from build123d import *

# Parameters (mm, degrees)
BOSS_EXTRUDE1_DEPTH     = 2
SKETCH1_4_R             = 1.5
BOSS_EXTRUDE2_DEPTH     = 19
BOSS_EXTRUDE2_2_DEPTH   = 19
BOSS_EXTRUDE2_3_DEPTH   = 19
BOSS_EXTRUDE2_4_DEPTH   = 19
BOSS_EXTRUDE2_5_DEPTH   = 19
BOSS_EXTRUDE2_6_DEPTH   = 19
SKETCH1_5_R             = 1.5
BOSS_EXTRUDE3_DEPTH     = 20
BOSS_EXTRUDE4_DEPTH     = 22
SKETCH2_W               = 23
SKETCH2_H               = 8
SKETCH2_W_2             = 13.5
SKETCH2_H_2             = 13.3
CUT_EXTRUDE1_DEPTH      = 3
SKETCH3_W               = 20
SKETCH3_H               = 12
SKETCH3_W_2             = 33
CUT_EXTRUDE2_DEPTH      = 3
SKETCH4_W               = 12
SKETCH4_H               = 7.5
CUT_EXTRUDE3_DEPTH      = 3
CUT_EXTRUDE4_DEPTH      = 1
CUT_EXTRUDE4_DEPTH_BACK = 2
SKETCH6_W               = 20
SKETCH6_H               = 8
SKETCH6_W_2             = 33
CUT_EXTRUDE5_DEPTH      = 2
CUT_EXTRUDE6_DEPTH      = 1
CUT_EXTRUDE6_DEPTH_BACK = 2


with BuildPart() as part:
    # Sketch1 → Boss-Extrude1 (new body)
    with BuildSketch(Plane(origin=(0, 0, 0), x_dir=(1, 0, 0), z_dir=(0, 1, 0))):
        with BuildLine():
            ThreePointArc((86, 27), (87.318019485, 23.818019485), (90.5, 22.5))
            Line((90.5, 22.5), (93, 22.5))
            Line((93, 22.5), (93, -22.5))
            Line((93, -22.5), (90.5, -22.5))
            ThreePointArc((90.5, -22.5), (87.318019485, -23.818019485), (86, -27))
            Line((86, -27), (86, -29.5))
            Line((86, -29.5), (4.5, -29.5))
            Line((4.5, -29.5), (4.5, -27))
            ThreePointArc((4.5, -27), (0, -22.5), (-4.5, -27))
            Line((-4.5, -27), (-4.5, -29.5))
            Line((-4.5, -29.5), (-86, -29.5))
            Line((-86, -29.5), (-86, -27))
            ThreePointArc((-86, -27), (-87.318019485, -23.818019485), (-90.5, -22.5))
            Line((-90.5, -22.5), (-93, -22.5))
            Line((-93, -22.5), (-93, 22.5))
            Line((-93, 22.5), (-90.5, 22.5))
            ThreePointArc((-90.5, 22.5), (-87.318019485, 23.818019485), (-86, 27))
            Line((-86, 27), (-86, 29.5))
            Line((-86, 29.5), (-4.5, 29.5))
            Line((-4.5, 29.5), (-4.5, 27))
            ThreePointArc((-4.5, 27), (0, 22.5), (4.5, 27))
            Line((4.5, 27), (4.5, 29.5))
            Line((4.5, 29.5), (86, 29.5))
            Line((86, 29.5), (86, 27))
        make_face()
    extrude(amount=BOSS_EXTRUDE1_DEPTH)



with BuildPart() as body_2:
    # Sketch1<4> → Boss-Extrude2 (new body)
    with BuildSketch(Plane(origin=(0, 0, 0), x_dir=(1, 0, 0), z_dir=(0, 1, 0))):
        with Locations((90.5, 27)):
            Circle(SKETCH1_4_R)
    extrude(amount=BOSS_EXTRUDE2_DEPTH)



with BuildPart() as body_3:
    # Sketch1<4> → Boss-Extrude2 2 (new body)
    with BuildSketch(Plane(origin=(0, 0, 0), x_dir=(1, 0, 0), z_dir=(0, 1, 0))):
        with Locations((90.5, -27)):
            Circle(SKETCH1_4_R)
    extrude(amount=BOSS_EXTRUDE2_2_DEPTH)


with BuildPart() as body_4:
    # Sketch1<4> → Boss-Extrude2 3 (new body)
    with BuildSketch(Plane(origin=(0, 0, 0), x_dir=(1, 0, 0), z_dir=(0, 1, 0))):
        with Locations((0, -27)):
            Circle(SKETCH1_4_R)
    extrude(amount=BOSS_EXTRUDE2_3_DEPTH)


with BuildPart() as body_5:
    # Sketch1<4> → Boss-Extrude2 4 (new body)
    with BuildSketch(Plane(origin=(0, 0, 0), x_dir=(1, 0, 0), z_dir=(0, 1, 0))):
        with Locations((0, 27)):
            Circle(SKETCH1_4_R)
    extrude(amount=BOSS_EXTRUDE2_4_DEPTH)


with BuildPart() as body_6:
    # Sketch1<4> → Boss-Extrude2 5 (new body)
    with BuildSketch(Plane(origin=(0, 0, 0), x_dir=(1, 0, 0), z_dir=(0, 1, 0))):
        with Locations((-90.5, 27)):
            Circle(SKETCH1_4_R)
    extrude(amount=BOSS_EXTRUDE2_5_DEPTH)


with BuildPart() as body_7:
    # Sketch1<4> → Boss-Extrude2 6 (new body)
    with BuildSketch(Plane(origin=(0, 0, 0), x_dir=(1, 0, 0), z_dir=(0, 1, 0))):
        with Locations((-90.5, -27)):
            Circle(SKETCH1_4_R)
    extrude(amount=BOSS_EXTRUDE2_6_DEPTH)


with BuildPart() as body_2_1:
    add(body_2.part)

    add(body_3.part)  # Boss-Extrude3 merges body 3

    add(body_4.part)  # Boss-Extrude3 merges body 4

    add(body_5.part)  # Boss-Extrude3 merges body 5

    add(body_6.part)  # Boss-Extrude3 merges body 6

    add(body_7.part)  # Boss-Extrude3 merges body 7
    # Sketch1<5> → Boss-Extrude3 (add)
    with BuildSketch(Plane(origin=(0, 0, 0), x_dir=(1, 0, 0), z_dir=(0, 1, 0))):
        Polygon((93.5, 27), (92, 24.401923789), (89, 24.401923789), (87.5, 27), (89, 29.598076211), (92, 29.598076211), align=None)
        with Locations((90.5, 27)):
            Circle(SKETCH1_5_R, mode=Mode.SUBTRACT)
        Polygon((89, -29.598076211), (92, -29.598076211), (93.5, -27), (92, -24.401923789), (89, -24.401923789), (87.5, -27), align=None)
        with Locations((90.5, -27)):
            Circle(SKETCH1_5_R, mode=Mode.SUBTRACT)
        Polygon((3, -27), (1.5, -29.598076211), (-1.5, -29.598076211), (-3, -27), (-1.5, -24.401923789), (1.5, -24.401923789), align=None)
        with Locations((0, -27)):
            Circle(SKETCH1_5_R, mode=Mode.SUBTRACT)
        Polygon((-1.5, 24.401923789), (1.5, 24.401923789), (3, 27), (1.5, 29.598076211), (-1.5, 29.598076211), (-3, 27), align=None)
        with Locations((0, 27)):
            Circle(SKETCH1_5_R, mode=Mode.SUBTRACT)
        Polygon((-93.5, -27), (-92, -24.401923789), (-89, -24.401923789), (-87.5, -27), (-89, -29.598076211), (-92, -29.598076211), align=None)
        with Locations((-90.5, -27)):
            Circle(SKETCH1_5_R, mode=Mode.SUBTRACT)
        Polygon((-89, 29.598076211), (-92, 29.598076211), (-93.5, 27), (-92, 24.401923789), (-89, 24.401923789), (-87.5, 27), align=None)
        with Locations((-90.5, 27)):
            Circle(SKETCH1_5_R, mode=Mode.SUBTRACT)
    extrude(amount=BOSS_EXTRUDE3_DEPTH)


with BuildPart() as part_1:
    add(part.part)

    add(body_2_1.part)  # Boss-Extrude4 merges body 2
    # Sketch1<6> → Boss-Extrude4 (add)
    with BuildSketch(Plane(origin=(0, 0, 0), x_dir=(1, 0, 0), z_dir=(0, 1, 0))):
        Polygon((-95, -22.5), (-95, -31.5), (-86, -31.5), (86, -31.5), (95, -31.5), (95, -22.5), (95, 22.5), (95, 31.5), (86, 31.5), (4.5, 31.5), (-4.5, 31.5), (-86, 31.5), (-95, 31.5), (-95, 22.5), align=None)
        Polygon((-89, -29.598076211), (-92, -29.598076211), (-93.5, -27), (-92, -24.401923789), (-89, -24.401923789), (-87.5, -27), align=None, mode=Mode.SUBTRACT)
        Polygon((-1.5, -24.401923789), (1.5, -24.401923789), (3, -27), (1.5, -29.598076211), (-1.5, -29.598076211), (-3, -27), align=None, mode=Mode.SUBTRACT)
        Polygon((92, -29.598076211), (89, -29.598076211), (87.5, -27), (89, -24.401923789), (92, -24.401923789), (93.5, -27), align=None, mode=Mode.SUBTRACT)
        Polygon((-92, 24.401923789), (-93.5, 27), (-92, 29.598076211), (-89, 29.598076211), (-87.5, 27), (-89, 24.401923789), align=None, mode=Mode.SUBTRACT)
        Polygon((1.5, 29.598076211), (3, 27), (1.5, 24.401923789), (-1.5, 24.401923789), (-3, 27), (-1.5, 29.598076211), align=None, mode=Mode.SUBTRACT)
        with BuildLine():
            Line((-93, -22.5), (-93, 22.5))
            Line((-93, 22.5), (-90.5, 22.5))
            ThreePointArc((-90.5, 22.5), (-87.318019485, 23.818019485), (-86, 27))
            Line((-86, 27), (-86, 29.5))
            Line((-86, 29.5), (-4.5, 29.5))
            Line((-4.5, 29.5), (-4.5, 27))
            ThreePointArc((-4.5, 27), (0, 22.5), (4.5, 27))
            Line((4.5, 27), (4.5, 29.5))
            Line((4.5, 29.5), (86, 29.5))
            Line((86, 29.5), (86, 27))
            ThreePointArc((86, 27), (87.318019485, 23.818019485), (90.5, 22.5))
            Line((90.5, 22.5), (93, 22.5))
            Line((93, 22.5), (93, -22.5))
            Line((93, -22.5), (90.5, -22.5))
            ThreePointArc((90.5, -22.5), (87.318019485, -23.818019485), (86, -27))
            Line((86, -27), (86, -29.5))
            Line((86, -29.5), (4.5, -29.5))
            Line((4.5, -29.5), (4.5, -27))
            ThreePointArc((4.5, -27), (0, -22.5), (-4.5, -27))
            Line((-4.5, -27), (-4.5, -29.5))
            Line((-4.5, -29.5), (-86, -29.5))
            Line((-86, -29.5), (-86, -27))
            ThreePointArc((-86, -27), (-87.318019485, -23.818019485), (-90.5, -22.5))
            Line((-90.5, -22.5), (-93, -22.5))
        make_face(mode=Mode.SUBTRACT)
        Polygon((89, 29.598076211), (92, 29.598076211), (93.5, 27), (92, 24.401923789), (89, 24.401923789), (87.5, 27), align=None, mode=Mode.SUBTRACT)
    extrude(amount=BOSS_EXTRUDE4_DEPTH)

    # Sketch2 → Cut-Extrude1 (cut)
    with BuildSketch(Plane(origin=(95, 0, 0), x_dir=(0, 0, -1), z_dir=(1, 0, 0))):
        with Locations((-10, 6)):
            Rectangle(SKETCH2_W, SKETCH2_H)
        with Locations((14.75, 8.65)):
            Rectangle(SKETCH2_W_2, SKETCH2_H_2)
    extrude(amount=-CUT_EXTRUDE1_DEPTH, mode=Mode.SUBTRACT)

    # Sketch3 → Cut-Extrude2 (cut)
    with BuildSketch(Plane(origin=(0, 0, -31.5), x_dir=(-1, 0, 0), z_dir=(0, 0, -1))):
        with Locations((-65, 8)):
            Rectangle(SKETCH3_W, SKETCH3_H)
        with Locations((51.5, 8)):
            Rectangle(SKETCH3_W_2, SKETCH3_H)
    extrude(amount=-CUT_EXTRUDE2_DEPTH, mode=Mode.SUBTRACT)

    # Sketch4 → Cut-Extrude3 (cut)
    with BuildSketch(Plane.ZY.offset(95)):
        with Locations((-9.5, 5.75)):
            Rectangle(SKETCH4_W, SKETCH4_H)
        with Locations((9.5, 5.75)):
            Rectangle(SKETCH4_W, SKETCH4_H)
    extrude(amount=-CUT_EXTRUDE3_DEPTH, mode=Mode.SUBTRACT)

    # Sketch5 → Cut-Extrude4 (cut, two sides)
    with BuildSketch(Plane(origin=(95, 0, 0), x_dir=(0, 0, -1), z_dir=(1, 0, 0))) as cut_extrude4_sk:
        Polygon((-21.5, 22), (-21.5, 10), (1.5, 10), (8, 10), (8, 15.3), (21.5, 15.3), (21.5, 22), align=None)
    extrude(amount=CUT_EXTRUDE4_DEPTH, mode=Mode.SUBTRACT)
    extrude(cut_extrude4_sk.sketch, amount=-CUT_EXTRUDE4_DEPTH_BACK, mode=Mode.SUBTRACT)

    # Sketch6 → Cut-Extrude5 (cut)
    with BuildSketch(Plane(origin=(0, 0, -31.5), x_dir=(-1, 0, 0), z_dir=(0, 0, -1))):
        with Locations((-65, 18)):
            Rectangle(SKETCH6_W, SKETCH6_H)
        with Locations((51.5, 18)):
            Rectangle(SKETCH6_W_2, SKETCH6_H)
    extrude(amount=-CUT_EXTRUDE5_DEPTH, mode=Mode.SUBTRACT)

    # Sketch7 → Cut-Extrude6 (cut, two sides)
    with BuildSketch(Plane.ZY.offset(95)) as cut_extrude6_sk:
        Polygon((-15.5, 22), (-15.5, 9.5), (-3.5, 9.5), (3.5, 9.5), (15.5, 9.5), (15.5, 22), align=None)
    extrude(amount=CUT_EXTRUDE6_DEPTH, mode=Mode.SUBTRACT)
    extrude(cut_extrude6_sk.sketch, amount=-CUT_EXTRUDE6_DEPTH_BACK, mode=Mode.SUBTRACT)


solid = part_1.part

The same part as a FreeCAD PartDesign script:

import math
import FreeCAD as App
import Part
import Sketcher
from FreeCAD import Vector
Q = App.Units.Quantity


def add_polygon(sketch, points):
    """Adds a closed chain of lines whose ends are joined by coincident constraints."""
    first, n = sketch.GeometryCount, len(points)
    for a, b in zip(points, points[1:] + points[:1]):
        sketch.addGeometry(Part.LineSegment(App.Vector(*a, 0), App.Vector(*b, 0)), False)
    for i in range(n):
        sketch.addConstraint(Sketcher.Constraint("Coincident", first + i, 2, first + (i + 1) % n, 1))

doc = App.newDocument("Part")
params = doc.addObject("Spreadsheet::Sheet", "Params")
for row, (alias, value) in enumerate([
    ("sketch1_radius", "4.5 mm"),
    ("sketch1_height", "45 mm"),
    ("sketch1_width", "81.5 mm"),
    ("sketch1_width2", "2.5 mm"),
    ("pad1_length", "2 mm"),
    ("sketch2_diameter", "3 mm"),
    ("pad2_length", "19 mm"),
    ("sketch3_diameter", "3 mm"),
    ("pad3_length", "19 mm"),
    ("sketch4_diameter", "3 mm"),
    ("pad4_length", "19 mm"),
    ("sketch5_diameter", "3 mm"),
    ("pad5_length", "19 mm"),
    ("sketch6_diameter", "3 mm"),
    ("pad6_length", "19 mm"),
    ("sketch7_diameter", "3 mm"),
    ("pad7_length", "19 mm"),
    ("sketch8_diameter", "3 mm"),
    ("sketch8_width", "3 mm"),
    ("sketch8_length", "3 mm"),
    ("pad8_length", "20 mm"),
    ("sketch9_radius", "4.5 mm"),
    ("sketch9_width", "190 mm"),
    ("sketch9_width2", "3 mm"),
    ("sketch9_height", "63 mm"),
    ("sketch9_height2", "45 mm"),
    ("pad9_length", "22 mm"),
    ("sketch10_width", "8 mm"),
    ("sketch10_height", "23 mm"),
    ("sketch10_width2", "13.3 mm"),
    ("sketch10_height2", "13.5 mm"),
    ("pocket1_length", "3 mm"),
    ("sketch11_width", "20 mm"),
    ("sketch11_width2", "33 mm"),
    ("sketch11_height", "12 mm"),
    ("pocket2_length", "3 mm"),
    ("sketch12_height", "12 mm"),
    ("sketch12_width", "7.5 mm"),
    ("pocket3_length", "3 mm"),
    ("sketch13_width", "12 mm"),
    ("sketch13_height", "43 mm"),
    ("sketch13_width2", "5.3 mm"),
    ("sketch13_height2", "29.5 mm"),
    ("pocket4_length", "1 mm"),
    ("pocket4_length2", "2 mm"),
    ("sketch14_width", "20 mm"),
    ("sketch14_width2", "33 mm"),
    ("sketch14_height", "8 mm"),
    ("pocket5_length", "2 mm"),
    ("sketch15_height", "31 mm"),
    ("sketch15_width", "12.5 mm"),
    ("pocket6_length", "1 mm"),
    ("pocket6_length2", "2 mm"),
], start=1):
    params.set(f"A{row}", alias)
    params.set(f"B{row}", "=" + value)
    params.setAlias(f"B{row}", alias)

body = doc.addObject("PartDesign::Body", "Body")

# Sketch on XZ plane
sketch1 = body.newObject("Sketcher::SketchObject", "Sketch")
sketch1.AttachmentSupport = (doc.getObject("XZ_Plane"), [""])
sketch1.MapMode = "FlatFace"
sketch1.addGeometry(Part.ArcOfCircle(Part.Circle(Vector(90.5, -27, 0), Vector(0, 0, 1), 4.5), math.radians(90), math.radians(180)), False)
sketch1.addGeometry(Part.LineSegment(Vector(86, -27, 0), Vector(86, -29.5, 0)), False)
sketch1.addGeometry(Part.LineSegment(Vector(86, -29.5, 0), Vector(4.5, -29.5, 0)), False)
sketch1.addGeometry(Part.LineSegment(Vector(4.5, -29.5, 0), Vector(4.5, -27, 0)), False)
sketch1.addGeometry(Part.ArcOfCircle(Part.Circle(Vector(0, -27, 0), Vector(0, 0, 1), 4.5), math.radians(0), math.radians(180)), False)
sketch1.addGeometry(Part.LineSegment(Vector(-4.5, -27, 0), Vector(-4.5, -29.5, 0)), False)
sketch1.addGeometry(Part.LineSegment(Vector(-4.5, -29.5, 0), Vector(-86, -29.5, 0)), False)
sketch1.addGeometry(Part.LineSegment(Vector(-86, -29.5, 0), Vector(-86, -27, 0)), False)
sketch1.addGeometry(Part.ArcOfCircle(Part.Circle(Vector(-90.5, -27, 0), Vector(0, 0, 1), 4.5), math.radians(0), math.radians(90)), False)
sketch1.addGeometry(Part.LineSegment(Vector(-90.5, -22.5, 0), Vector(-93, -22.5, 0)), False)
sketch1.addGeometry(Part.LineSegment(Vector(-93, -22.5, 0), Vector(-93, 22.5, 0)), False)
sketch1.addGeometry(Part.LineSegment(Vector(-93, 22.5, 0), Vector(-90.5, 22.5, 0)), False)
sketch1.addGeometry(Part.ArcOfCircle(Part.Circle(Vector(-90.5, 27, 0), Vector(0, 0, 1), 4.5), math.radians(-90), math.radians(0)), False)
sketch1.addGeometry(Part.LineSegment(Vector(-86, 27, 0), Vector(-86, 29.5, 0)), False)
sketch1.addGeometry(Part.LineSegment(Vector(-86, 29.5, 0), Vector(-4.5, 29.5, 0)), False)
sketch1.addGeometry(Part.LineSegment(Vector(-4.5, 29.5, 0), Vector(-4.5, 27, 0)), False)
sketch1.addGeometry(Part.ArcOfCircle(Part.Circle(Vector(0, 27, 0), Vector(0, 0, 1), 4.5), math.radians(180), math.radians(360)), False)
sketch1.addGeometry(Part.LineSegment(Vector(4.5, 27, 0), Vector(4.5, 29.5, 0)), False)
sketch1.addGeometry(Part.LineSegment(Vector(4.5, 29.5, 0), Vector(86, 29.5, 0)), False)
sketch1.addGeometry(Part.LineSegment(Vector(86, 29.5, 0), Vector(86, 27, 0)), False)
sketch1.addGeometry(Part.ArcOfCircle(Part.Circle(Vector(90.5, 27, 0), Vector(0, 0, 1), 4.5), math.radians(-180), math.radians(-90)), False)
sketch1.addGeometry(Part.LineSegment(Vector(90.5, 22.5, 0), Vector(93, 22.5, 0)), False)
sketch1.addGeometry(Part.LineSegment(Vector(93, 22.5, 0), Vector(93, -22.5, 0)), False)
sketch1.addGeometry(Part.LineSegment(Vector(93, -22.5, 0), Vector(90.5, -22.5, 0)), False)
sketch1.addConstraint(Sketcher.Constraint("Tangent", 0, 2, 1, 1))
sketch1.addConstraint(Sketcher.Constraint("Coincident", 1, 2, 2, 1))
sketch1.addConstraint(Sketcher.Constraint("Coincident", 2, 2, 3, 1))
sketch1.addConstraint(Sketcher.Constraint("Tangent", 3, 2, 4, 1))
sketch1.addConstraint(Sketcher.Constraint("Tangent", 4, 2, 5, 1))
sketch1.addConstraint(Sketcher.Constraint("Coincident", 5, 2, 6, 1))
sketch1.addConstraint(Sketcher.Constraint("Coincident", 6, 2, 7, 1))
sketch1.addConstraint(Sketcher.Constraint("Tangent", 7, 2, 8, 1))
sketch1.addConstraint(Sketcher.Constraint("Tangent", 8, 2, 9, 1))
sketch1.addConstraint(Sketcher.Constraint("Coincident", 9, 2, 10, 1))
sketch1.addConstraint(Sketcher.Constraint("Coincident", 10, 2, 11, 1))
sketch1.addConstraint(Sketcher.Constraint("Tangent", 11, 2, 12, 1))
sketch1.addConstraint(Sketcher.Constraint("Tangent", 12, 2, 13, 1))
sketch1.addConstraint(Sketcher.Constraint("Coincident", 13, 2, 14, 1))
sketch1.addConstraint(Sketcher.Constraint("Coincident", 14, 2, 15, 1))
sketch1.addConstraint(Sketcher.Constraint("Tangent", 15, 2, 16, 1))
sketch1.addConstraint(Sketcher.Constraint("Tangent", 16, 2, 17, 1))
sketch1.addConstraint(Sketcher.Constraint("Coincident", 17, 2, 18, 1))
sketch1.addConstraint(Sketcher.Constraint("Coincident", 18, 2, 19, 1))
sketch1.addConstraint(Sketcher.Constraint("Tangent", 19, 2, 20, 1))
sketch1.addConstraint(Sketcher.Constraint("Tangent", 20, 2, 21, 1))
sketch1.addConstraint(Sketcher.Constraint("Coincident", 21, 2, 22, 1))
sketch1.addConstraint(Sketcher.Constraint("Coincident", 22, 2, 23, 1))
sketch1.addConstraint(Sketcher.Constraint("Tangent", 23, 2, 0, 1))
sketch1.addConstraint(Sketcher.Constraint("Vertical", 1))
sketch1.addConstraint(Sketcher.Constraint("Horizontal", 2))
sketch1.addConstraint(Sketcher.Constraint("Vertical", 3))
sketch1.addConstraint(Sketcher.Constraint("Vertical", 5))
sketch1.addConstraint(Sketcher.Constraint("Horizontal", 6))
sketch1.addConstraint(Sketcher.Constraint("Vertical", 7))
sketch1.addConstraint(Sketcher.Constraint("Horizontal", 9))
sketch1.addConstraint(Sketcher.Constraint("Vertical", 10))
sketch1.addConstraint(Sketcher.Constraint("Horizontal", 11))
sketch1.addConstraint(Sketcher.Constraint("Vertical", 13))
sketch1.addConstraint(Sketcher.Constraint("Horizontal", 14))
sketch1.addConstraint(Sketcher.Constraint("Vertical", 15))
sketch1.addConstraint(Sketcher.Constraint("Vertical", 17))
sketch1.addConstraint(Sketcher.Constraint("Horizontal", 18))
sketch1.addConstraint(Sketcher.Constraint("Vertical", 19))
sketch1.addConstraint(Sketcher.Constraint("Horizontal", 21))
sketch1.addConstraint(Sketcher.Constraint("Vertical", 22))
sketch1.addConstraint(Sketcher.Constraint("Horizontal", 23))
sketch1.addConstraint(Sketcher.Constraint("Equal", 0, 4))
sketch1.addConstraint(Sketcher.Constraint("Equal", 4, 8))
sketch1.addConstraint(Sketcher.Constraint("Equal", 8, 12))
sketch1.addConstraint(Sketcher.Constraint("Equal", 12, 16))
sketch1.addConstraint(Sketcher.Constraint("Equal", 16, 20))
sketch1.addConstraint(Sketcher.Constraint("Symmetric", 0, 3, 12, 3, -1, 1))
sketch1.addConstraint(Sketcher.Constraint("Symmetric", 4, 3, 16, 3, -1, 1))
sketch1.addConstraint(Sketcher.Constraint("Symmetric", 8, 3, 20, 3, -1, 1))
sketch1.addConstraint(Sketcher.Constraint("Symmetric", 0, 3, 8, 3, -2))
sketch1.addConstraint(Sketcher.Constraint("Symmetric", 2, 2, 5, 2, -2))
sketch1.addConstraint(Sketcher.Constraint("Horizontal", 0, 3, 4, 3))
sketch1.addConstraint(Sketcher.Constraint("Horizontal", 14, 2, 17, 2))
sketch1.addConstraint(Sketcher.Constraint("Equal", 11, 21))
sketch1.addConstraint(Sketcher.Constraint("Equal", 23, 1))
sketch1.addConstraint(Sketcher.Constraint("Equal", 7, 13))
sketch1.addConstraint(Sketcher.Constraint("Radius", 0, Q("4.5 mm")))
sketch1.addConstraint(Sketcher.Constraint("DistanceY", 10, 1, 10, 2, Q("45 mm")))
sketch1.addConstraint(Sketcher.Constraint("DistanceX", 2, 2, 2, 1, Q("81.5 mm")))
sketch1.addConstraint(Sketcher.Constraint("DistanceX", 9, 2, 9, 1, Q("2.5 mm")))
sketch1.setExpression("Constraints[57]", "Params.sketch1_radius")
sketch1.setExpression("Constraints[58]", "Params.sketch1_height")
sketch1.setExpression("Constraints[59]", "Params.sketch1_width")
sketch1.setExpression("Constraints[60]", "Params.sketch1_width2")
pad1 = body.newObject("PartDesign::Pad", "Pad")
pad1.Profile = sketch1
pad1.setExpression("Length", "Params.pad1_length")
pad1.Reversed = True
body2 = doc.addObject("PartDesign::Body", "Body001")

# Sketch on XZ plane
sketch2 = body2.newObject("Sketcher::SketchObject", "Sketch001")
sketch2.AttachmentSupport = (doc.getObject("XZ_Plane001"), [""])
sketch2.MapMode = "FlatFace"
sketch2.addGeometry(Part.Circle(Vector(90.5, -27, 0), Vector(0, 0, 1), 1.5), False)
sketch2.addConstraint(Sketcher.Constraint("Diameter", 0, Q("3 mm")))
sketch2.addConstraint(Sketcher.Constraint("DistanceY", 0, 3, -1, 1, Q("27 mm")))
sketch2.addConstraint(Sketcher.Constraint("DistanceX", -1, 1, 0, 3, Q("90.5 mm")))
sketch2.setExpression("Constraints[0]", "Params.sketch2_diameter")
pad2 = body2.newObject("PartDesign::Pad", "Pad001")
pad2.Profile = sketch2
pad2.setExpression("Length", "Params.pad2_length")
pad2.Reversed = True
body3 = doc.addObject("PartDesign::Body", "Body002")

# Sketch on XZ plane
sketch3 = body3.newObject("Sketcher::SketchObject", "Sketch002")
sketch3.AttachmentSupport = (doc.getObject("XZ_Plane002"), [""])
sketch3.MapMode = "FlatFace"
sketch3.addGeometry(Part.Circle(Vector(90.5, 27, 0), Vector(0, 0, 1), 1.5), False)
sketch3.addConstraint(Sketcher.Constraint("Diameter", 0, Q("3 mm")))
sketch3.addConstraint(Sketcher.Constraint("DistanceY", -1, 1, 0, 3, Q("27 mm")))
sketch3.addConstraint(Sketcher.Constraint("DistanceX", -1, 1, 0, 3, Q("90.5 mm")))
sketch3.setExpression("Constraints[0]", "Params.sketch3_diameter")
pad3 = body3.newObject("PartDesign::Pad", "Pad002")
pad3.Profile = sketch3
pad3.setExpression("Length", "Params.pad3_length")
pad3.Reversed = True
body4 = doc.addObject("PartDesign::Body", "Body003")

# Sketch on XZ plane
sketch4 = body4.newObject("Sketcher::SketchObject", "Sketch003")
sketch4.AttachmentSupport = (doc.getObject("XZ_Plane003"), [""])
sketch4.MapMode = "FlatFace"
sketch4.addGeometry(Part.Circle(Vector(0, 27, 0), Vector(0, 0, 1), 1.5), False)
sketch4.addConstraint(Sketcher.Constraint("PointOnObject", 0, 3, -2))
sketch4.addConstraint(Sketcher.Constraint("Diameter", 0, Q("3 mm")))
sketch4.addConstraint(Sketcher.Constraint("DistanceY", -1, 1, 0, 3, Q("27 mm")))
sketch4.setExpression("Constraints[1]", "Params.sketch4_diameter")
pad4 = body4.newObject("PartDesign::Pad", "Pad003")
pad4.Profile = sketch4
pad4.setExpression("Length", "Params.pad4_length")
pad4.Reversed = True
body5 = doc.addObject("PartDesign::Body", "Body004")

# Sketch on XZ plane
sketch5 = body5.newObject("Sketcher::SketchObject", "Sketch004")
sketch5.AttachmentSupport = (doc.getObject("XZ_Plane004"), [""])
sketch5.MapMode = "FlatFace"
sketch5.addGeometry(Part.Circle(Vector(0, -27, 0), Vector(0, 0, 1), 1.5), False)
sketch5.addConstraint(Sketcher.Constraint("PointOnObject", 0, 3, -2))
sketch5.addConstraint(Sketcher.Constraint("Diameter", 0, Q("3 mm")))
sketch5.addConstraint(Sketcher.Constraint("DistanceY", 0, 3, -1, 1, Q("27 mm")))
sketch5.setExpression("Constraints[1]", "Params.sketch5_diameter")
pad5 = body5.newObject("PartDesign::Pad", "Pad004")
pad5.Profile = sketch5
pad5.setExpression("Length", "Params.pad5_length")
pad5.Reversed = True
body6 = doc.addObject("PartDesign::Body", "Body005")

# Sketch on XZ plane
sketch6 = body6.newObject("Sketcher::SketchObject", "Sketch005")
sketch6.AttachmentSupport = (doc.getObject("XZ_Plane005"), [""])
sketch6.MapMode = "FlatFace"
sketch6.addGeometry(Part.Circle(Vector(-90.5, -27, 0), Vector(0, 0, 1), 1.5), False)
sketch6.addConstraint(Sketcher.Constraint("Diameter", 0, Q("3 mm")))
sketch6.addConstraint(Sketcher.Constraint("DistanceY", 0, 3, -1, 1, Q("27 mm")))
sketch6.addConstraint(Sketcher.Constraint("DistanceX", 0, 3, -1, 1, Q("90.5 mm")))
sketch6.setExpression("Constraints[0]", "Params.sketch6_diameter")
pad6 = body6.newObject("PartDesign::Pad", "Pad005")
pad6.Profile = sketch6
pad6.setExpression("Length", "Params.pad6_length")
pad6.Reversed = True
body7 = doc.addObject("PartDesign::Body", "Body006")

# Sketch on XZ plane
sketch7 = body7.newObject("Sketcher::SketchObject", "Sketch006")
sketch7.AttachmentSupport = (doc.getObject("XZ_Plane006"), [""])
sketch7.MapMode = "FlatFace"
sketch7.addGeometry(Part.Circle(Vector(-90.5, 27, 0), Vector(0, 0, 1), 1.5), False)
sketch7.addConstraint(Sketcher.Constraint("Diameter", 0, Q("3 mm")))
sketch7.addConstraint(Sketcher.Constraint("DistanceY", -1, 1, 0, 3, Q("27 mm")))
sketch7.addConstraint(Sketcher.Constraint("DistanceX", 0, 3, -1, 1, Q("90.5 mm")))
sketch7.setExpression("Constraints[0]", "Params.sketch7_diameter")
pad7 = body7.newObject("PartDesign::Pad", "Pad006")
pad7.Profile = sketch7
pad7.setExpression("Length", "Params.pad7_length")
pad7.Reversed = True
body2.AllowCompound = True
doc.recompute()

boolean = body2.newObject("PartDesign::Boolean", "Boolean")
boolean.Type = "Fuse"
boolean.addObjects([body3])
doc.recompute()

boolean2 = body2.newObject("PartDesign::Boolean", "Boolean001")
boolean2.Type = "Fuse"
boolean2.addObjects([body4])
doc.recompute()

boolean3 = body2.newObject("PartDesign::Boolean", "Boolean002")
boolean3.Type = "Fuse"
boolean3.addObjects([body5])
doc.recompute()

boolean4 = body2.newObject("PartDesign::Boolean", "Boolean003")
boolean4.Type = "Fuse"
boolean4.addObjects([body6])
doc.recompute()

boolean5 = body2.newObject("PartDesign::Boolean", "Boolean004")
boolean5.Type = "Fuse"
boolean5.addObjects([body7])

# Sketch on XZ plane
sketch8 = body2.newObject("Sketcher::SketchObject", "Sketch007")
sketch8.AttachmentSupport = (doc.getObject("XZ_Plane001"), [""])
sketch8.MapMode = "FlatFace"
add_polygon(sketch8, [(92, -24.4), (93.5, -27), (92, -29.6), (89, -29.6), (87.5, -27), (89, -24.4)])  # lines 0-5
sketch8.addGeometry(Part.Circle(Vector(90.5, -27, 0), Vector(0, 0, 1), 1.5), False)  # 6
add_polygon(sketch8, [(89, 29.6), (92, 29.6), (93.5, 27), (92, 24.4), (89, 24.4), (87.5, 27)])  # lines 7-12
sketch8.addGeometry(Part.Circle(Vector(90.5, 27, 0), Vector(0, 0, 1), 1.5), False)  # 13
add_polygon(sketch8, [(1.5, 29.6), (3, 27), (1.5, 24.4), (-1.5, 24.4), (-3, 27), (-1.5, 29.6)])  # lines 14-19
sketch8.addGeometry(Part.Circle(Vector(0, 27, 0), Vector(0, 0, 1), 1.5), False)  # 20
add_polygon(sketch8, [(-1.5, -24.4), (1.5, -24.4), (3, -27), (1.5, -29.6), (-1.5, -29.6), (-3, -27)])  # lines 21-26
sketch8.addGeometry(Part.Circle(Vector(0, -27, 0), Vector(0, 0, 1), 1.5), False)  # 27
add_polygon(sketch8, [(-92, 24.4), (-93.5, 27), (-92, 29.6), (-89, 29.6), (-87.5, 27), (-89, 24.4)])  # lines 28-33
sketch8.addGeometry(Part.Circle(Vector(-90.5, 27, 0), Vector(0, 0, 1), 1.5), False)  # 34
add_polygon(sketch8, [(-89, -29.6), (-92, -29.6), (-93.5, -27), (-92, -24.4), (-89, -24.4), (-87.5, -27)])  # lines 35-40
sketch8.addGeometry(Part.Circle(Vector(-90.5, -27, 0), Vector(0, 0, 1), 1.5), False)  # 41
sketch8.addConstraint(Sketcher.Constraint("Horizontal", 2))
sketch8.addConstraint(Sketcher.Constraint("Horizontal", 5))
sketch8.addConstraint(Sketcher.Constraint("Horizontal", 7))
sketch8.addConstraint(Sketcher.Constraint("Horizontal", 10))
sketch8.addConstraint(Sketcher.Constraint("Horizontal", 16))
sketch8.addConstraint(Sketcher.Constraint("Horizontal", 19))
sketch8.addConstraint(Sketcher.Constraint("Horizontal", 21))
sketch8.addConstraint(Sketcher.Constraint("Horizontal", 24))
sketch8.addConstraint(Sketcher.Constraint("Horizontal", 30))
sketch8.addConstraint(Sketcher.Constraint("Horizontal", 33))
sketch8.addConstraint(Sketcher.Constraint("Horizontal", 35))
sketch8.addConstraint(Sketcher.Constraint("Horizontal", 38))
sketch8.addConstraint(Sketcher.Constraint("Equal", 6, 13))
sketch8.addConstraint(Sketcher.Constraint("Equal", 13, 20))
sketch8.addConstraint(Sketcher.Constraint("Equal", 20, 27))
sketch8.addConstraint(Sketcher.Constraint("Equal", 27, 34))
sketch8.addConstraint(Sketcher.Constraint("Equal", 34, 41))
sketch8.addConstraint(Sketcher.Constraint("Symmetric", 20, 3, 27, 3, -1, 1))
sketch8.addConstraint(Sketcher.Constraint("Symmetric", 6, 3, 34, 3, -1, 1))
sketch8.addConstraint(Sketcher.Constraint("Symmetric", 13, 3, 41, 3, -1, 1))
sketch8.addConstraint(Sketcher.Constraint("Symmetric", 16, 2, 21, 2, -1, 1))
sketch8.addConstraint(Sketcher.Constraint("Symmetric", 17, 2, 22, 2, -1, 1))
sketch8.addConstraint(Sketcher.Constraint("Symmetric", 18, 2, 23, 2, -1, 1))
sketch8.addConstraint(Sketcher.Constraint("Symmetric", 14, 2, 25, 2, -1, 1))
sketch8.addConstraint(Sketcher.Constraint("Symmetric", 0, 2, 28, 2, -1, 1))
sketch8.addConstraint(Sketcher.Constraint("Symmetric", 1, 2, 29, 2, -1, 1))
sketch8.addConstraint(Sketcher.Constraint("Symmetric", 3, 2, 31, 2, -1, 1))
sketch8.addConstraint(Sketcher.Constraint("Symmetric", 4, 2, 32, 2, -1, 1))
sketch8.addConstraint(Sketcher.Constraint("Symmetric", 7, 2, 35, 2, -1, 1))
sketch8.addConstraint(Sketcher.Constraint("Symmetric", 8, 2, 36, 2, -1, 1))
sketch8.addConstraint(Sketcher.Constraint("Symmetric", 9, 2, 37, 2, -1, 1))
sketch8.addConstraint(Sketcher.Constraint("Symmetric", 11, 2, 39, 2, -1, 1))
sketch8.addConstraint(Sketcher.Constraint("Symmetric", 13, 3, 34, 3, -2))
sketch8.addConstraint(Sketcher.Constraint("Symmetric", 14, 2, 17, 2, -2))
sketch8.addConstraint(Sketcher.Constraint("Symmetric", 8, 2, 28, 2, -2))
sketch8.addConstraint(Sketcher.Constraint("Symmetric", 7, 2, 29, 2, -2))
sketch8.addConstraint(Sketcher.Constraint("Symmetric", 11, 2, 31, 2, -2))
sketch8.addConstraint(Sketcher.Constraint("Symmetric", 10, 2, 32, 2, -2))
sketch8.addConstraint(Sketcher.Constraint("PointOnObject", 20, 3, -2))
sketch8.addConstraint(Sketcher.Constraint("Parallel", 0, 3))
sketch8.addConstraint(Sketcher.Constraint("Parallel", 1, 4))
sketch8.addConstraint(Sketcher.Constraint("Parallel", 3, 8))
sketch8.addConstraint(Sketcher.Constraint("Parallel", 4, 9))
sketch8.addConstraint(Sketcher.Constraint("Parallel", 9, 12))
sketch8.addConstraint(Sketcher.Constraint("Parallel", 11, 14))
sketch8.addConstraint(Sketcher.Constraint("Parallel", 12, 15))
sketch8.addConstraint(Sketcher.Constraint("Parallel", 14, 17))
sketch8.addConstraint(Sketcher.Constraint("Parallel", 15, 18))
sketch8.addConstraint(Sketcher.Constraint("Parallel", 22, 25))
sketch8.addConstraint(Sketcher.Constraint("Parallel", 23, 26))
sketch8.addConstraint(Sketcher.Constraint("Parallel", 25, 28))
sketch8.addConstraint(Sketcher.Constraint("Parallel", 28, 31))
sketch8.addConstraint(Sketcher.Constraint("Parallel", 36, 39))
sketch8.addConstraint(Sketcher.Constraint("Parallel", 37, 40))
sketch8.addConstraint(Sketcher.Constraint("Horizontal", 13, 3, 20, 3))
sketch8.addConstraint(Sketcher.Constraint("Horizontal", 41, 3, 0, 2))
sketch8.addConstraint(Sketcher.Constraint("Horizontal", 0, 2, 3, 2))
sketch8.addConstraint(Sketcher.Constraint("Horizontal", 11, 2, 14, 2))
sketch8.addConstraint(Sketcher.Constraint("Horizontal", 10, 2, 15, 2))
sketch8.addConstraint(Sketcher.Constraint("Horizontal", 12, 2, 18, 2))
sketch8.addConstraint(Sketcher.Constraint("Vertical", 2, 2, 4, 2))
sketch8.addConstraint(Sketcher.Constraint("Equal", 10, 16))
sketch8.addConstraint(Sketcher.Constraint("Diameter", 6, Q("3 mm")))
sketch8.addConstraint(Sketcher.Constraint("DistanceX", 2, 2, 2, 1, Q("3 mm")))
sketch8.addConstraint(Sketcher.Constraint("Angle", 0, Q("-60 deg")))
sketch8.addConstraint(Sketcher.Constraint("Distance", 0, Q("3 mm")))
sketch8.addConstraint(Sketcher.Constraint("DistanceY", 6, 3, -1, 1, Q("27 mm")))
sketch8.addConstraint(Sketcher.Constraint("DistanceX", -1, 1, 1, 2, Q("92 mm")))
sketch8.addConstraint(Sketcher.Constraint("DistanceX", 34, 3, 13, 3, Q("181 mm")))
sketch8.setExpression("Constraints[98]", "Params.sketch8_diameter")
sketch8.setExpression("Constraints[99]", "Params.sketch8_width")
sketch8.setExpression("Constraints[101]", "Params.sketch8_length")
pad8 = body2.newObject("PartDesign::Pad", "Pad007")
pad8.Profile = sketch8
pad8.setExpression("Length", "Params.pad8_length")
pad8.Reversed = True
body.AllowCompound = True
doc.recompute()

boolean6 = body.newObject("PartDesign::Boolean", "Boolean005")
boolean6.Type = "Fuse"
boolean6.addObjects([body2])

# Sketch on XZ plane
sketch9 = body.newObject("Sketcher::SketchObject", "Sketch008")
sketch9.AttachmentSupport = (doc.getObject("XZ_Plane"), [""])
sketch9.MapMode = "FlatFace"
add_polygon(sketch9, [(-95, 31.5), (95, 31.5), (95, -31.5), (-95, -31.5)])  # lines 0-3
add_polygon(sketch9, [(-87.5, 27), (-89, 29.6), (-92, 29.6), (-93.5, 27), (-92, 24.4), (-89, 24.4)])  # lines 4-9
add_polygon(sketch9, [(-3, 27), (-1.5, 24.4), (1.5, 24.4), (3, 27), (1.5, 29.6), (-1.5, 29.6)])  # lines 10-15
add_polygon(sketch9, [(93.5, 27), (92, 29.6), (89, 29.6), (87.5, 27), (89, 24.4), (92, 24.4)])  # lines 16-21
sketch9.addGeometry(Part.LineSegment(Vector(-90.5, 22.5, 0), Vector(-93, 22.5, 0)), False)  # 22
sketch9.addGeometry(Part.LineSegment(Vector(-93, 22.5, 0), Vector(-93, -22.5, 0)), False)  # 23
sketch9.addGeometry(Part.LineSegment(Vector(-93, -22.5, 0), Vector(-90.5, -22.5, 0)), False)  # 24
sketch9.addGeometry(Part.ArcOfCircle(Part.Circle(Vector(-90.5, -27, 0), Vector(0, 0, 1), 4.5), math.radians(0), math.radians(90)), False)  # 25
sketch9.addGeometry(Part.LineSegment(Vector(-86, -27, 0), Vector(-86, -29.5, 0)), False)  # 26
sketch9.addGeometry(Part.LineSegment(Vector(-86, -29.5, 0), Vector(-4.5, -29.5, 0)), False)  # 27
sketch9.addGeometry(Part.LineSegment(Vector(-4.5, -29.5, 0), Vector(-4.5, -27, 0)), False)  # 28
sketch9.addGeometry(Part.ArcOfCircle(Part.Circle(Vector(0, -27, 0), Vector(0, 0, 1), 4.5), math.radians(0), math.radians(180)), False)  # 29
sketch9.addGeometry(Part.LineSegment(Vector(4.5, -27, 0), Vector(4.5, -29.5, 0)), False)  # 30
sketch9.addGeometry(Part.LineSegment(Vector(4.5, -29.5, 0), Vector(86, -29.5, 0)), False)  # 31
sketch9.addGeometry(Part.LineSegment(Vector(86, -29.5, 0), Vector(86, -27, 0)), False)  # 32
sketch9.addGeometry(Part.ArcOfCircle(Part.Circle(Vector(90.5, -27, 0), Vector(0, 0, 1), 4.5), math.radians(90), math.radians(180)), False)  # 33
sketch9.addGeometry(Part.LineSegment(Vector(90.5, -22.5, 0), Vector(93, -22.5, 0)), False)  # 34
sketch9.addGeometry(Part.LineSegment(Vector(93, -22.5, 0), Vector(93, 22.5, 0)), False)  # 35
sketch9.addGeometry(Part.LineSegment(Vector(93, 22.5, 0), Vector(90.5, 22.5, 0)), False)  # 36
sketch9.addGeometry(Part.ArcOfCircle(Part.Circle(Vector(90.5, 27, 0), Vector(0, 0, 1), 4.5), math.radians(-180), math.radians(-90)), False)  # 37
sketch9.addGeometry(Part.LineSegment(Vector(86, 27, 0), Vector(86, 29.5, 0)), False)  # 38
sketch9.addGeometry(Part.LineSegment(Vector(86, 29.5, 0), Vector(4.5, 29.5, 0)), False)  # 39
sketch9.addGeometry(Part.LineSegment(Vector(4.5, 29.5, 0), Vector(4.5, 27, 0)), False)  # 40
sketch9.addGeometry(Part.ArcOfCircle(Part.Circle(Vector(0, 27, 0), Vector(0, 0, 1), 4.5), math.radians(180), math.radians(360)), False)  # 41
sketch9.addGeometry(Part.LineSegment(Vector(-4.5, 27, 0), Vector(-4.5, 29.5, 0)), False)  # 42
sketch9.addGeometry(Part.LineSegment(Vector(-4.5, 29.5, 0), Vector(-86, 29.5, 0)), False)  # 43
sketch9.addGeometry(Part.LineSegment(Vector(-86, 29.5, 0), Vector(-86, 27, 0)), False)  # 44
sketch9.addGeometry(Part.ArcOfCircle(Part.Circle(Vector(-90.5, 27, 0), Vector(0, 0, 1), 4.5), math.radians(-90), math.radians(0)), False)  # 45
add_polygon(sketch9, [(-89, -24.4), (-92, -24.4), (-93.5, -27), (-92, -29.6), (-89, -29.6), (-87.5, -27)])  # lines 46-51
add_polygon(sketch9, [(-1.5, -29.6), (1.5, -29.6), (3, -27), (1.5, -24.4), (-1.5, -24.4), (-3, -27)])  # lines 52-57
add_polygon(sketch9, [(87.5, -27), (89, -29.6), (92, -29.6), (93.5, -27), (92, -24.4), (89, -24.4)])  # lines 58-63
sketch9.addConstraint(Sketcher.Constraint("Coincident", 22, 2, 23, 1))
sketch9.addConstraint(Sketcher.Constraint("Coincident", 23, 2, 24, 1))
sketch9.addConstraint(Sketcher.Constraint("Tangent", 24, 2, 25, 2))
sketch9.addConstraint(Sketcher.Constraint("Tangent", 25, 1, 26, 1))
sketch9.addConstraint(Sketcher.Constraint("Coincident", 26, 2, 27, 1))
sketch9.addConstraint(Sketcher.Constraint("Coincident", 27, 2, 28, 1))
sketch9.addConstraint(Sketcher.Constraint("Tangent", 28, 2, 29, 2))
sketch9.addConstraint(Sketcher.Constraint("Tangent", 29, 1, 30, 1))
sketch9.addConstraint(Sketcher.Constraint("Coincident", 30, 2, 31, 1))
sketch9.addConstraint(Sketcher.Constraint("Coincident", 31, 2, 32, 1))
sketch9.addConstraint(Sketcher.Constraint("Tangent", 32, 2, 33, 2))
sketch9.addConstraint(Sketcher.Constraint("Tangent", 33, 1, 34, 1))
sketch9.addConstraint(Sketcher.Constraint("Coincident", 34, 2, 35, 1))
sketch9.addConstraint(Sketcher.Constraint("Coincident", 35, 2, 36, 1))
sketch9.addConstraint(Sketcher.Constraint("Tangent", 36, 2, 37, 2))
sketch9.addConstraint(Sketcher.Constraint("Tangent", 37, 1, 38, 1))
sketch9.addConstraint(Sketcher.Constraint("Coincident", 38, 2, 39, 1))
sketch9.addConstraint(Sketcher.Constraint("Coincident", 39, 2, 40, 1))
sketch9.addConstraint(Sketcher.Constraint("Tangent", 40, 2, 41, 2))
sketch9.addConstraint(Sketcher.Constraint("Tangent", 41, 1, 42, 1))
sketch9.addConstraint(Sketcher.Constraint("Coincident", 42, 2, 43, 1))
sketch9.addConstraint(Sketcher.Constraint("Coincident", 43, 2, 44, 1))
sketch9.addConstraint(Sketcher.Constraint("Tangent", 44, 2, 45, 2))
sketch9.addConstraint(Sketcher.Constraint("Tangent", 45, 1, 22, 1))
sketch9.addConstraint(Sketcher.Constraint("Horizontal", 0))
sketch9.addConstraint(Sketcher.Constraint("Vertical", 1))
sketch9.addConstraint(Sketcher.Constraint("Horizontal", 2))
sketch9.addConstraint(Sketcher.Constraint("Vertical", 3))
sketch9.addConstraint(Sketcher.Constraint("Horizontal", 5))
sketch9.addConstraint(Sketcher.Constraint("Horizontal", 8))
sketch9.addConstraint(Sketcher.Constraint("Horizontal", 11))
sketch9.addConstraint(Sketcher.Constraint("Horizontal", 14))
sketch9.addConstraint(Sketcher.Constraint("Horizontal", 17))
sketch9.addConstraint(Sketcher.Constraint("Horizontal", 20))
sketch9.addConstraint(Sketcher.Constraint("Horizontal", 22))
sketch9.addConstraint(Sketcher.Constraint("Vertical", 23))
sketch9.addConstraint(Sketcher.Constraint("Horizontal", 24))
sketch9.addConstraint(Sketcher.Constraint("Vertical", 26))
sketch9.addConstraint(Sketcher.Constraint("Horizontal", 27))
sketch9.addConstraint(Sketcher.Constraint("Vertical", 28))
sketch9.addConstraint(Sketcher.Constraint("Vertical", 30))
sketch9.addConstraint(Sketcher.Constraint("Horizontal", 31))
sketch9.addConstraint(Sketcher.Constraint("Vertical", 32))
sketch9.addConstraint(Sketcher.Constraint("Horizontal", 34))
sketch9.addConstraint(Sketcher.Constraint("Vertical", 35))
sketch9.addConstraint(Sketcher.Constraint("Horizontal", 36))
sketch9.addConstraint(Sketcher.Constraint("Vertical", 38))
sketch9.addConstraint(Sketcher.Constraint("Horizontal", 39))
sketch9.addConstraint(Sketcher.Constraint("Vertical", 40))
sketch9.addConstraint(Sketcher.Constraint("Vertical", 42))
sketch9.addConstraint(Sketcher.Constraint("Horizontal", 43))
sketch9.addConstraint(Sketcher.Constraint("Vertical", 44))
sketch9.addConstraint(Sketcher.Constraint("Horizontal", 46))
sketch9.addConstraint(Sketcher.Constraint("Horizontal", 49))
sketch9.addConstraint(Sketcher.Constraint("Horizontal", 52))
sketch9.addConstraint(Sketcher.Constraint("Horizontal", 55))
sketch9.addConstraint(Sketcher.Constraint("Horizontal", 59))
sketch9.addConstraint(Sketcher.Constraint("Horizontal", 62))
sketch9.addConstraint(Sketcher.Constraint("Equal", 25, 29))
sketch9.addConstraint(Sketcher.Constraint("Equal", 29, 33))
sketch9.addConstraint(Sketcher.Constraint("Equal", 33, 37))
sketch9.addConstraint(Sketcher.Constraint("Equal", 37, 41))
sketch9.addConstraint(Sketcher.Constraint("Equal", 41, 45))
sketch9.addConstraint(Sketcher.Constraint("Symmetric", 25, 3, 37, 3, -1, 1))
sketch9.addConstraint(Sketcher.Constraint("Symmetric", 29, 3, 41, 3, -1, 1))
sketch9.addConstraint(Sketcher.Constraint("Symmetric", 33, 3, 45, 3, -1, 1))
sketch9.addConstraint(Sketcher.Constraint("Symmetric", 0, 2, 2, 2, -1, 1))
sketch9.addConstraint(Sketcher.Constraint("Symmetric", 20, 2, 46, 2, -1, 1))
sketch9.addConstraint(Sketcher.Constraint("Symmetric", 21, 2, 47, 2, -1, 1))
sketch9.addConstraint(Sketcher.Constraint("Symmetric", 16, 2, 48, 2, -1, 1))
sketch9.addConstraint(Sketcher.Constraint("Symmetric", 18, 2, 50, 2, -1, 1))
sketch9.addConstraint(Sketcher.Constraint("Symmetric", 14, 2, 52, 2, -1, 1))
sketch9.addConstraint(Sketcher.Constraint("Symmetric", 15, 2, 53, 2, -1, 1))
sketch9.addConstraint(Sketcher.Constraint("Symmetric", 10, 2, 54, 2, -1, 1))
sketch9.addConstraint(Sketcher.Constraint("Symmetric", 12, 2, 56, 2, -1, 1))
sketch9.addConstraint(Sketcher.Constraint("Symmetric", 4, 2, 58, 2, -1, 1))
sketch9.addConstraint(Sketcher.Constraint("Symmetric", 6, 2, 60, 2, -1, 1))
sketch9.addConstraint(Sketcher.Constraint("Symmetric", 7, 2, 61, 2, -1, 1))
sketch9.addConstraint(Sketcher.Constraint("Symmetric", 9, 2, 63, 2, -1, 1))
sketch9.addConstraint(Sketcher.Constraint("Symmetric", 25, 3, 33, 3, -2))
sketch9.addConstraint(Sketcher.Constraint("Symmetric", 12, 2, 15, 2, -2))
sketch9.addConstraint(Sketcher.Constraint("Symmetric", 5, 2, 16, 2, -2))
sketch9.addConstraint(Sketcher.Constraint("Symmetric", 9, 2, 18, 2, -2))
sketch9.addConstraint(Sketcher.Constraint("Symmetric", 8, 2, 19, 2, -2))
sketch9.addConstraint(Sketcher.Constraint("Symmetric", 6, 2, 21, 2, -2))
sketch9.addConstraint(Sketcher.Constraint("Symmetric", 27, 2, 30, 2, -2))
sketch9.addConstraint(Sketcher.Constraint("Parallel", 4, 7))
sketch9.addConstraint(Sketcher.Constraint("Parallel", 6, 9))
sketch9.addConstraint(Sketcher.Constraint("Parallel", 7, 10))
sketch9.addConstraint(Sketcher.Constraint("Parallel", 9, 12))
sketch9.addConstraint(Sketcher.Constraint("Parallel", 10, 13))
sketch9.addConstraint(Sketcher.Constraint("Parallel", 12, 15))
sketch9.addConstraint(Sketcher.Constraint("Parallel", 13, 16))
sketch9.addConstraint(Sketcher.Constraint("Parallel", 15, 18))
sketch9.addConstraint(Sketcher.Constraint("Parallel", 18, 21))
sketch9.addConstraint(Sketcher.Constraint("Parallel", 47, 50))
sketch9.addConstraint(Sketcher.Constraint("Parallel", 48, 51))
sketch9.addConstraint(Sketcher.Constraint("Parallel", 53, 56))
sketch9.addConstraint(Sketcher.Constraint("Parallel", 54, 57))
sketch9.addConstraint(Sketcher.Constraint("Parallel", 56, 60))
sketch9.addConstraint(Sketcher.Constraint("Parallel", 60, 63))
sketch9.addConstraint(Sketcher.Constraint("Horizontal", 25, 3, 29, 3))
sketch9.addConstraint(Sketcher.Constraint("Horizontal", 45, 3, 6, 2))
sketch9.addConstraint(Sketcher.Constraint("Horizontal", 6, 2, 9, 2))
sketch9.addConstraint(Sketcher.Constraint("Horizontal", 8, 2, 10, 2))
sketch9.addConstraint(Sketcher.Constraint("Horizontal", 9, 2, 12, 2))
sketch9.addConstraint(Sketcher.Constraint("Horizontal", 5, 2, 13, 2))
sketch9.addConstraint(Sketcher.Constraint("Horizontal", 39, 2, 42, 2))
sketch9.addConstraint(Sketcher.Constraint("Vertical", 5, 2, 7, 2))
sketch9.addConstraint(Sketcher.Constraint("Equal", 8, 11))
sketch9.addConstraint(Sketcher.Constraint("Equal", 24, 34))
sketch9.addConstraint(Sketcher.Constraint("Equal", 36, 26))
sketch9.addConstraint(Sketcher.Constraint("Equal", 32, 38))
sketch9.addConstraint(Sketcher.Constraint("Radius", 25, Q("4.5 mm")))
sketch9.addConstraint(Sketcher.Constraint("DistanceX", 0, 1, 0, 2, Q("190 mm")))
sketch9.addConstraint(Sketcher.Constraint("DistanceX", 5, 2, 5, 1, Q("3 mm")))
sketch9.addConstraint(Sketcher.Constraint("DistanceY", 1, 2, 1, 1, Q("63 mm")))
sketch9.addConstraint(Sketcher.Constraint("DistanceY", 23, 2, 23, 1, Q("45 mm")))
sketch9.addConstraint(Sketcher.Constraint("Angle", 4, Q("120 deg")))
sketch9.addConstraint(Sketcher.Constraint("Distance", 4, Q("3 mm")))
sketch9.addConstraint(Sketcher.Constraint("DistanceX", 22, 2, 22, 1, Q("2.5 mm")))
sketch9.addConstraint(Sketcher.Constraint("DistanceX", 27, 1, 27, 2, Q("81.5 mm")))
sketch9.addConstraint(Sketcher.Constraint("DistanceX", 4, 2, -1, 1, Q("89 mm")))
sketch9.setExpression("Constraints[153]", "Params.sketch9_radius")
sketch9.setExpression("Constraints[154]", "Params.sketch9_width")
sketch9.setExpression("Constraints[155]", "Params.sketch9_width2")
sketch9.setExpression("Constraints[156]", "Params.sketch9_height")
sketch9.setExpression("Constraints[157]", "Params.sketch9_height2")
pad9 = body.newObject("PartDesign::Pad", "Pad008")
pad9.Profile = sketch9
pad9.setExpression("Length", "Params.pad9_length")
pad9.Reversed = True

# Sketch on YZ plane
sketch10 = body.newObject("Sketcher::SketchObject", "Sketch009")
sketch10.AttachmentSupport = (doc.getObject("YZ_Plane"), [""])
sketch10.MapMode = "FlatFace"
sketch10.AttachmentOffset = App.Placement(Vector(0, 0, 95), App.Rotation())
add_polygon(sketch10, [(10, 22), (2, 22), (2, -2), (10, -2)])  # lines 0-3
add_polygon(sketch10, [(15, -8), (2, -8), (2, -22), (15, -22)])  # lines 4-7
sketch10.addConstraint(Sketcher.Constraint("Horizontal", 0))
sketch10.addConstraint(Sketcher.Constraint("Vertical", 1))
sketch10.addConstraint(Sketcher.Constraint("Horizontal", 2))
sketch10.addConstraint(Sketcher.Constraint("Vertical", 3))
sketch10.addConstraint(Sketcher.Constraint("Horizontal", 4))
sketch10.addConstraint(Sketcher.Constraint("Vertical", 5))
sketch10.addConstraint(Sketcher.Constraint("Horizontal", 6))
sketch10.addConstraint(Sketcher.Constraint("Vertical", 7))
sketch10.addConstraint(Sketcher.Constraint("Symmetric", 0, 2, 5, 2, -1))
sketch10.addConstraint(Sketcher.Constraint("DistanceX", 0, 2, 0, 1, Q("8 mm")))
sketch10.addConstraint(Sketcher.Constraint("DistanceY", 1, 2, 1, 1, Q("23 mm")))
sketch10.addConstraint(Sketcher.Constraint("DistanceX", 4, 2, 4, 1, Q("13.3 mm")))
sketch10.addConstraint(Sketcher.Constraint("DistanceY", 5, 2, 5, 1, Q("13.5 mm")))
sketch10.addConstraint(Sketcher.Constraint("DistanceX", -1, 1, 0, 2, Q("2 mm")))
sketch10.addConstraint(Sketcher.Constraint("DistanceY", 4, 2, -1, 1, Q("8 mm")))
sketch10.setExpression("Constraints[17]", "Params.sketch10_width")
sketch10.setExpression("Constraints[18]", "Params.sketch10_height")
sketch10.setExpression("Constraints[19]", "Params.sketch10_width2")
sketch10.setExpression("Constraints[20]", "Params.sketch10_height2")
pocket1 = body.newObject("PartDesign::Pocket", "Pocket")
pocket1.Profile = sketch10
pocket1.setExpression("Length", "Params.pocket1_length")

# Sketch on XY plane
sketch11 = body.newObject("Sketcher::SketchObject", "Sketch010")
sketch11.AttachmentSupport = (doc.getObject("XY_Plane"), [""])
sketch11.MapMode = "FlatFace"
sketch11.AttachmentOffset = App.Placement(Vector(0, 0, -31.5), App.Rotation())
add_polygon(sketch11, [(75, 14), (75, 2), (55, 2), (55, 14)])  # lines 0-3
add_polygon(sketch11, [(-35, 14), (-35, 2), (-68, 2), (-68, 14)])  # lines 4-7
sketch11.addConstraint(Sketcher.Constraint("Vertical", 0))
sketch11.addConstraint(Sketcher.Constraint("Horizontal", 1))
sketch11.addConstraint(Sketcher.Constraint("Vertical", 2))
sketch11.addConstraint(Sketcher.Constraint("Horizontal", 3))
sketch11.addConstraint(Sketcher.Constraint("Vertical", 4))
sketch11.addConstraint(Sketcher.Constraint("Horizontal", 5))
sketch11.addConstraint(Sketcher.Constraint("Vertical", 6))
sketch11.addConstraint(Sketcher.Constraint("Horizontal", 7))
sketch11.addConstraint(Sketcher.Constraint("Horizontal", 1, 2, 4, 2))
sketch11.addConstraint(Sketcher.Constraint("Horizontal", 3, 2, 6, 2))
sketch11.addConstraint(Sketcher.Constraint("DistanceX", 1, 2, 1, 1, Q("20 mm")))
sketch11.addConstraint(Sketcher.Constraint("DistanceX", 5, 2, 5, 1, Q("33 mm")))
sketch11.addConstraint(Sketcher.Constraint("DistanceY", 0, 2, 0, 1, Q("12 mm")))
sketch11.addConstraint(Sketcher.Constraint("DistanceX", -1, 1, 0, 2, Q("75 mm")))
sketch11.addConstraint(Sketcher.Constraint("DistanceY", -1, 1, 0, 2, Q("2 mm")))
sketch11.addConstraint(Sketcher.Constraint("DistanceX", 4, 2, -1, 1, Q("35 mm")))
sketch11.setExpression("Constraints[18]", "Params.sketch11_width")
sketch11.setExpression("Constraints[19]", "Params.sketch11_width2")
sketch11.setExpression("Constraints[20]", "Params.sketch11_height")
pocket2 = body.newObject("PartDesign::Pocket", "Pocket001")
pocket2.Profile = sketch11
pocket2.setExpression("Length", "Params.pocket2_length")
pocket2.Reversed = True

# Sketch on YZ plane
sketch12 = body.newObject("Sketcher::SketchObject", "Sketch011")
sketch12.AttachmentSupport = (doc.getObject("YZ_Plane"), [""])
sketch12.MapMode = "FlatFace"
sketch12.AttachmentOffset = App.Placement(Vector(0, 0, -95), App.Rotation())
add_polygon(sketch12, [(10, -16), (2, -16), (2, -4), (10, -4)])  # lines 0-3
add_polygon(sketch12, [(10, 4), (2, 4), (2, 16), (10, 16)])  # lines 4-7
sketch12.addConstraint(Sketcher.Constraint("Horizontal", 0))
sketch12.addConstraint(Sketcher.Constraint("Vertical", 1))
sketch12.addConstraint(Sketcher.Constraint("Horizontal", 2))
sketch12.addConstraint(Sketcher.Constraint("Vertical", 3))
sketch12.addConstraint(Sketcher.Constraint("Horizontal", 4))
sketch12.addConstraint(Sketcher.Constraint("Vertical", 5))
sketch12.addConstraint(Sketcher.Constraint("Horizontal", 6))
sketch12.addConstraint(Sketcher.Constraint("Vertical", 7))
sketch12.addConstraint(Sketcher.Constraint("Symmetric", 1, 2, 4, 2, -1))
sketch12.addConstraint(Sketcher.Constraint("Symmetric", 3, 2, 6, 2, -1))
sketch12.addConstraint(Sketcher.Constraint("DistanceY", 1, 1, 1, 2, Q("12 mm")))
sketch12.addConstraint(Sketcher.Constraint("DistanceX", 0, 2, 0, 1, Q("7.5 mm")))
sketch12.addConstraint(Sketcher.Constraint("DistanceX", -1, 1, 0, 2, Q("2 mm")))
sketch12.addConstraint(Sketcher.Constraint("DistanceY", 1, 2, 4, 2, Q("7 mm")))
sketch12.setExpression("Constraints[18]", "Params.sketch12_height")
sketch12.setExpression("Constraints[19]", "Params.sketch12_width")
pocket3 = body.newObject("PartDesign::Pocket", "Pocket002")
pocket3.Profile = sketch12
pocket3.setExpression("Length", "Params.pocket3_length")
pocket3.Reversed = True

# Sketch on YZ plane
sketch13 = body.newObject("Sketcher::SketchObject", "Sketch012")
sketch13.AttachmentSupport = (doc.getObject("YZ_Plane"), [""])
sketch13.MapMode = "FlatFace"
sketch13.AttachmentOffset = App.Placement(Vector(0, 0, 95), App.Rotation())
add_polygon(sketch13, [(22, 22), (10, 22), (10, -8), (15, -8), (15, -22), (22, -22)])  # lines 0-5
sketch13.addConstraint(Sketcher.Constraint("Horizontal", 0))
sketch13.addConstraint(Sketcher.Constraint("Vertical", 1))
sketch13.addConstraint(Sketcher.Constraint("Horizontal", 2))
sketch13.addConstraint(Sketcher.Constraint("Vertical", 3))
sketch13.addConstraint(Sketcher.Constraint("Horizontal", 4))
sketch13.addConstraint(Sketcher.Constraint("Vertical", 5))
sketch13.addConstraint(Sketcher.Constraint("DistanceX", 0, 2, 0, 1, Q("12 mm")))
sketch13.addConstraint(Sketcher.Constraint("DistanceY", 5, 1, 5, 2, Q("43 mm")))
sketch13.addConstraint(Sketcher.Constraint("DistanceX", 2, 1, 2, 2, Q("5.3 mm")))
sketch13.addConstraint(Sketcher.Constraint("DistanceY", 1, 2, 1, 1, Q("29.5 mm")))
sketch13.addConstraint(Sketcher.Constraint("DistanceX", -1, 1, 0, 2, Q("10 mm")))
sketch13.addConstraint(Sketcher.Constraint("DistanceY", 1, 2, -1, 1, Q("8 mm")))
sketch13.setExpression("Constraints[12]", "Params.sketch13_width")
sketch13.setExpression("Constraints[13]", "Params.sketch13_height")
sketch13.setExpression("Constraints[14]", "Params.sketch13_width2")
sketch13.setExpression("Constraints[15]", "Params.sketch13_height2")
pocket4 = body.newObject("PartDesign::Pocket", "Pocket003")
pocket4.Profile = sketch13
pocket4.Type = "TwoLengths"
pocket4.setExpression("Length", "Params.pocket4_length")
pocket4.setExpression("Length2", "Params.pocket4_length2")
pocket4.Reversed = True

# Sketch on XY plane
sketch14 = body.newObject("Sketcher::SketchObject", "Sketch013")
sketch14.AttachmentSupport = (doc.getObject("XY_Plane"), [""])
sketch14.MapMode = "FlatFace"
sketch14.AttachmentOffset = App.Placement(Vector(0, 0, -31.5), App.Rotation())
add_polygon(sketch14, [(75, 22), (75, 14), (55, 14), (55, 22)])  # lines 0-3
add_polygon(sketch14, [(-35, 22), (-35, 14), (-68, 14), (-68, 22)])  # lines 4-7
sketch14.addConstraint(Sketcher.Constraint("Vertical", 0))
sketch14.addConstraint(Sketcher.Constraint("Horizontal", 1))
sketch14.addConstraint(Sketcher.Constraint("Vertical", 2))
sketch14.addConstraint(Sketcher.Constraint("Horizontal", 3))
sketch14.addConstraint(Sketcher.Constraint("Vertical", 4))
sketch14.addConstraint(Sketcher.Constraint("Horizontal", 5))
sketch14.addConstraint(Sketcher.Constraint("Vertical", 6))
sketch14.addConstraint(Sketcher.Constraint("Horizontal", 7))
sketch14.addConstraint(Sketcher.Constraint("Horizontal", 1, 2, 4, 2))
sketch14.addConstraint(Sketcher.Constraint("Horizontal", 3, 2, 6, 2))
sketch14.addConstraint(Sketcher.Constraint("DistanceX", 1, 2, 1, 1, Q("20 mm")))
sketch14.addConstraint(Sketcher.Constraint("DistanceX", 5, 2, 5, 1, Q("33 mm")))
sketch14.addConstraint(Sketcher.Constraint("DistanceY", 0, 2, 0, 1, Q("8 mm")))
sketch14.addConstraint(Sketcher.Constraint("DistanceX", -1, 1, 0, 2, Q("75 mm")))
sketch14.addConstraint(Sketcher.Constraint("DistanceY", -1, 1, 0, 2, Q("14 mm")))
sketch14.addConstraint(Sketcher.Constraint("DistanceX", 4, 2, -1, 1, Q("35 mm")))
sketch14.setExpression("Constraints[18]", "Params.sketch14_width")
sketch14.setExpression("Constraints[19]", "Params.sketch14_width2")
sketch14.setExpression("Constraints[20]", "Params.sketch14_height")
pocket5 = body.newObject("PartDesign::Pocket", "Pocket004")
pocket5.Profile = sketch14
pocket5.setExpression("Length", "Params.pocket5_length")
pocket5.Reversed = True

# Sketch on YZ plane
sketch15 = body.newObject("Sketcher::SketchObject", "Sketch014")
sketch15.AttachmentSupport = (doc.getObject("YZ_Plane"), [""])
sketch15.MapMode = "FlatFace"
sketch15.AttachmentOffset = App.Placement(Vector(0, 0, -95), App.Rotation())
add_polygon(sketch15, [(22, -16), (10, -16), (10, 16), (22, 16)])  # lines 0-3
sketch15.addConstraint(Sketcher.Constraint("Horizontal", 0))
sketch15.addConstraint(Sketcher.Constraint("Vertical", 1))
sketch15.addConstraint(Sketcher.Constraint("Horizontal", 2))
sketch15.addConstraint(Sketcher.Constraint("Vertical", 3))
sketch15.addConstraint(Sketcher.Constraint("DistanceY", 1, 1, 1, 2, Q("31 mm")))
sketch15.addConstraint(Sketcher.Constraint("DistanceX", 0, 2, 0, 1, Q("12.5 mm")))
sketch15.addConstraint(Sketcher.Constraint("DistanceX", -1, 1, 2, 2, Q("22 mm")))
sketch15.addConstraint(Sketcher.Constraint("DistanceY", 0, 2, -1, 1, Q("15.5 mm")))
sketch15.setExpression("Constraints[8]", "Params.sketch15_height")
sketch15.setExpression("Constraints[9]", "Params.sketch15_width")
pocket6 = body.newObject("PartDesign::Pocket", "Pocket005")
pocket6.Profile = sketch15
pocket6.Type = "TwoLengths"
pocket6.setExpression("Length", "Params.pocket6_length")
pocket6.setExpression("Length2", "Params.pocket6_length2")

doc.recompute()
